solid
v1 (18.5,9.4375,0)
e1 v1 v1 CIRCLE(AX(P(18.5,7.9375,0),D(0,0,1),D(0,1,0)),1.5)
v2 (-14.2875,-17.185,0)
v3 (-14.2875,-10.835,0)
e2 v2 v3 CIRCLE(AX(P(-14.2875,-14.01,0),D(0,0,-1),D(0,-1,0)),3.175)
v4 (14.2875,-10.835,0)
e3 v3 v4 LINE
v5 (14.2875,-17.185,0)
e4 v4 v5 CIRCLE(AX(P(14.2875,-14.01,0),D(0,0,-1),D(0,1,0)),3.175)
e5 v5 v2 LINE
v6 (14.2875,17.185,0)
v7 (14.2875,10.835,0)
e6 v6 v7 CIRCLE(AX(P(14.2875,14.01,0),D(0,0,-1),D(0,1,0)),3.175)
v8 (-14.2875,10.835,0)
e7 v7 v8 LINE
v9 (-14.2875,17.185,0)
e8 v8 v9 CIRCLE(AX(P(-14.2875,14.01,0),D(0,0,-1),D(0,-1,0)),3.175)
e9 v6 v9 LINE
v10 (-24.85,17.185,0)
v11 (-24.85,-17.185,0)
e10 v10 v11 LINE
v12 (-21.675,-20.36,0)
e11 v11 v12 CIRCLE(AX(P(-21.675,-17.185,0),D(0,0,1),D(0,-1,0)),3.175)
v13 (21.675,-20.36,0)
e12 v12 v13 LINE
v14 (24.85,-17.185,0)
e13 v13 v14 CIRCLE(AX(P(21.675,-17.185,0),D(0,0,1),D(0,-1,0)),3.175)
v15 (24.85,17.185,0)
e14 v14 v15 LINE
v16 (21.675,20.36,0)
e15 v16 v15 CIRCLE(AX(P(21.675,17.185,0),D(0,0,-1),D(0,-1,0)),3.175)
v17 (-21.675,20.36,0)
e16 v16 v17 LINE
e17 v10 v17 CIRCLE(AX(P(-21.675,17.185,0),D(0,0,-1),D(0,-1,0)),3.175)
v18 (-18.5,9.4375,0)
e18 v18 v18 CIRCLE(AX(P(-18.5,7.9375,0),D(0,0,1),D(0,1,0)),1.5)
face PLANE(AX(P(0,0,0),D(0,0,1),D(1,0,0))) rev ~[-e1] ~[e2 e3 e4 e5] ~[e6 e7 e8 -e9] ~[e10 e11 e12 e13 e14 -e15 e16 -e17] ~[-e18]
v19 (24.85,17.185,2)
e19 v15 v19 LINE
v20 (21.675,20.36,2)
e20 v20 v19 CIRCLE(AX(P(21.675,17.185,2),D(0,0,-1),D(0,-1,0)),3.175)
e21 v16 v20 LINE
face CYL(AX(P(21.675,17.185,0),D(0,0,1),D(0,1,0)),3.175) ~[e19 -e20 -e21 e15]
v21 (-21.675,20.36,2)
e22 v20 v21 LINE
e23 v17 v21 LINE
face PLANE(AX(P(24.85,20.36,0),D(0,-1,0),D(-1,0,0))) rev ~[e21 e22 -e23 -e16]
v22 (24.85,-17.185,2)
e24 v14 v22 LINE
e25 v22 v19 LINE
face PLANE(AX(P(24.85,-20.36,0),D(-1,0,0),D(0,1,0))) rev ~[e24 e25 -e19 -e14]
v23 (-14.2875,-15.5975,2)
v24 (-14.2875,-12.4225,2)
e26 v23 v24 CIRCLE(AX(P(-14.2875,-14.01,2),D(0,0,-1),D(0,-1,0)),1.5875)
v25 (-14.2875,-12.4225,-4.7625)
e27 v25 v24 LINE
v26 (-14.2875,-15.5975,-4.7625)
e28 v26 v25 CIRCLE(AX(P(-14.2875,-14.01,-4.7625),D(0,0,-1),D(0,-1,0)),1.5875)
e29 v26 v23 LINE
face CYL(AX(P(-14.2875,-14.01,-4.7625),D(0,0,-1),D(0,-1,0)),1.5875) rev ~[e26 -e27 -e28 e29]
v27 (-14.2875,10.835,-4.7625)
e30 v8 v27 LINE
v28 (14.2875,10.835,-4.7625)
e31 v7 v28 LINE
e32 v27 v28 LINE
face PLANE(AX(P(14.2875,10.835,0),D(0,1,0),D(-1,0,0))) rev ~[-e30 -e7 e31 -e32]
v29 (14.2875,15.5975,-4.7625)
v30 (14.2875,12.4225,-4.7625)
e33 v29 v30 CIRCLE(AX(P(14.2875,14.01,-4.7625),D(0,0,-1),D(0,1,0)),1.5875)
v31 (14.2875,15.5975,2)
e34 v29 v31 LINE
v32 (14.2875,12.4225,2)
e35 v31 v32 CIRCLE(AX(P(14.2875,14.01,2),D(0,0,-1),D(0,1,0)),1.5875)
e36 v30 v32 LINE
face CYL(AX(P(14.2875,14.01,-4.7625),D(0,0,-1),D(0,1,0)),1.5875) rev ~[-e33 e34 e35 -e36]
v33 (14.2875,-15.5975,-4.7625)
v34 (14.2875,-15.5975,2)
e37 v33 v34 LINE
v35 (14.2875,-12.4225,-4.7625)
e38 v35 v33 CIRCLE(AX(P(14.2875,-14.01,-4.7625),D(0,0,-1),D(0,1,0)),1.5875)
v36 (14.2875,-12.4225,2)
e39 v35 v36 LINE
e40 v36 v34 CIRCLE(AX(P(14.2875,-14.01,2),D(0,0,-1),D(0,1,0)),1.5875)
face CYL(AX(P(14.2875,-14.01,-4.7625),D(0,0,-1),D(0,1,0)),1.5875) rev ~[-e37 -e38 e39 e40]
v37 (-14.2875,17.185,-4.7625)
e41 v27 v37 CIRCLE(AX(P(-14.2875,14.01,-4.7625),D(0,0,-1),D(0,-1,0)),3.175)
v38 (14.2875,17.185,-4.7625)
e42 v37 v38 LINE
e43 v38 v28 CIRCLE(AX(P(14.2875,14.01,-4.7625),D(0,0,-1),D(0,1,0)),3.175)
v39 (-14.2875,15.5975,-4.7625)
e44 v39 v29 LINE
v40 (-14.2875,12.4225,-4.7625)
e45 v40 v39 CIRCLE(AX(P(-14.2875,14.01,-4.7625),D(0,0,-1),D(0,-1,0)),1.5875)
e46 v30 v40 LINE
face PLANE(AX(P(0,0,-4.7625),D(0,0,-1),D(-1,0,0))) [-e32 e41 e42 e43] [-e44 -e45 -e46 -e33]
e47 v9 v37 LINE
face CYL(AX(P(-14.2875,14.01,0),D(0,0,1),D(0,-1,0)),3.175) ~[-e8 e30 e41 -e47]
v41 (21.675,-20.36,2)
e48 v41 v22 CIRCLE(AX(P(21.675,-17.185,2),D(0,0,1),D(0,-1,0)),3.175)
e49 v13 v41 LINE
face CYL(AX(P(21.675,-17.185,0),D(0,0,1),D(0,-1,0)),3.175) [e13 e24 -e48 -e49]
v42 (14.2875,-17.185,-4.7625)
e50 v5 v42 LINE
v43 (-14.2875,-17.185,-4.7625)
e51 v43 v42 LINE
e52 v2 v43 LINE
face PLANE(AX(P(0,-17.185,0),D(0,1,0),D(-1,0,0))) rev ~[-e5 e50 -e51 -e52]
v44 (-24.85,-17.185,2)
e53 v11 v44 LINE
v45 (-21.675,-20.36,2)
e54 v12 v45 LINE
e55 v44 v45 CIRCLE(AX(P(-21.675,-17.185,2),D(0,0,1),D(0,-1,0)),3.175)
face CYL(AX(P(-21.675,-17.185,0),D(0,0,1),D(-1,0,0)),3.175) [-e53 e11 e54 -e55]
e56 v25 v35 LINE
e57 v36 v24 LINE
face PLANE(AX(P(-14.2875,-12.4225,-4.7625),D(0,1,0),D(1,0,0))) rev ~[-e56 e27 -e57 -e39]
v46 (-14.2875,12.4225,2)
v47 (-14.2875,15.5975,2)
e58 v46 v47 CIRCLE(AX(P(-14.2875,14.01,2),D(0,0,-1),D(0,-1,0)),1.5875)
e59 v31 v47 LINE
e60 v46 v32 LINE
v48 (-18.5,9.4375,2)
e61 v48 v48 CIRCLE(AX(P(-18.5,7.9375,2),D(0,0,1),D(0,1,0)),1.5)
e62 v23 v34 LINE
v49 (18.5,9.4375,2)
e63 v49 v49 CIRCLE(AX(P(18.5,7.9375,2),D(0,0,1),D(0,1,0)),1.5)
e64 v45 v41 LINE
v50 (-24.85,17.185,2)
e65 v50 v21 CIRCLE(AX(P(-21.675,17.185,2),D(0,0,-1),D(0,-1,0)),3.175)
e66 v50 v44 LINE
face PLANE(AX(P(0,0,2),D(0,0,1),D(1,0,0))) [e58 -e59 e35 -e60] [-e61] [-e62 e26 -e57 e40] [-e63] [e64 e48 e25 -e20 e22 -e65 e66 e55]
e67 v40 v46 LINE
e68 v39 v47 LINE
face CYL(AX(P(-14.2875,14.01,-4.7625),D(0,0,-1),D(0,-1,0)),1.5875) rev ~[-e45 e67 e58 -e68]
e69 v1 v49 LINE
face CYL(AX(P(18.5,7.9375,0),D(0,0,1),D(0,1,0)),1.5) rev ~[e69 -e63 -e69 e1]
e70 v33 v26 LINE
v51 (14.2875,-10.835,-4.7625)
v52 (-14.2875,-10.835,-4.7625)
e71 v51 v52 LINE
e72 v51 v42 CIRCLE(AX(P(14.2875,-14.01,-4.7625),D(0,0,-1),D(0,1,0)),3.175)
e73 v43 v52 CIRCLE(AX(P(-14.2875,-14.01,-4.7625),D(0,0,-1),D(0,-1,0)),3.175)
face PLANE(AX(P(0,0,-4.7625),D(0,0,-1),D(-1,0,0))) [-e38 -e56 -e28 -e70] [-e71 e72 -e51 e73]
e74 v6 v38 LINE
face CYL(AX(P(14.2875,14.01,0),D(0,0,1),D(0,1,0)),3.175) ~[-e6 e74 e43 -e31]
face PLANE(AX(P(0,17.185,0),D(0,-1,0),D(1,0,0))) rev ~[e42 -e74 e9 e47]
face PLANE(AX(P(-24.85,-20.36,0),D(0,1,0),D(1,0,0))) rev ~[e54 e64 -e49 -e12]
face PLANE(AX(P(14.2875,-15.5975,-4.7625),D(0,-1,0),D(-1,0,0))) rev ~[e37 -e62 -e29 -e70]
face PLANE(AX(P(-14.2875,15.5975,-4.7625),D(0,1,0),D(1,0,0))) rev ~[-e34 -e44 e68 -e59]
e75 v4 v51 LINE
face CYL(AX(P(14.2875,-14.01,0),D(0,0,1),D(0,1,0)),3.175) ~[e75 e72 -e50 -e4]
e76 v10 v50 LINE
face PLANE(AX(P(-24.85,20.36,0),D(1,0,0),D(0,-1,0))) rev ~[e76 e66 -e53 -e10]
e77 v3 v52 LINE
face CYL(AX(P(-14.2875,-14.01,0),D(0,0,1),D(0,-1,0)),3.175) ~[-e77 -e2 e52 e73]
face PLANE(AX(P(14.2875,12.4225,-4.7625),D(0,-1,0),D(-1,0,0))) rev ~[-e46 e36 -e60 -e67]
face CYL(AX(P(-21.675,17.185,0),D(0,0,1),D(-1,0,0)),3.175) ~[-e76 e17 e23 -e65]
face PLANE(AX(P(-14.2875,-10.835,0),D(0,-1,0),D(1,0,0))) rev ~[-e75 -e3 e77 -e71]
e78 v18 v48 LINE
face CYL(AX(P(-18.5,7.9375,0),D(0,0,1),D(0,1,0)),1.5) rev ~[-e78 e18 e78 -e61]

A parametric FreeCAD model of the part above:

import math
import FreeCAD as App
import Part
import Sketcher

V = App.Vector
Q = App.Units.Quantity


def edges_at(feature, points):
    """Names of the edges that pass closest to the given points."""
    edges = feature.Shape.Edges
    near = lambda p: min(range(len(edges)), key=lambda i: edges[i].distToShape(Part.Vertex(*p))[0])
    return sorted({f"Edge{near(p) + 1}" for p in points})


def add_polygon(sketch, points):
    """Adds a closed chain of lines whose ends are joined by coincident constraints."""
    first, n = sketch.GeometryCount, len(points)
    for a, b in zip(points, points[1:] + points[:1]):
        sketch.addGeometry(Part.LineSegment(App.Vector(*a, 0), App.Vector(*b, 0)), False)
    for i in range(n):
        sketch.addConstraint(Sketcher.Constraint("Coincident", first + i, 2, first + (i + 1) % n, 1))

doc = App.newDocument("Part")
body = doc.addObject("PartDesign::Body", "Body")

# Sketch on XY plane
sketch1 = body.newObject("Sketcher::SketchObject", "Sketch")
sketch1.AttachmentSupport = (doc.getObject("XY_Plane"), [""])
sketch1.MapMode = "FlatFace"
add_polygon(sketch1, [(-24.85, 20.36), (-24.85, -20.36), (24.85, -20.36), (24.85, 20.36)])  # lines 0-3
sketch1.addConstraint([
    Sketcher.Constraint("Vertical", 0),
    Sketcher.Constraint("Horizontal", 1),
    Sketcher.Constraint("Vertical", 2),
    Sketcher.Constraint("Horizontal", 3),
    Sketcher.Constraint("Symmetric", 0, 2, 2, 2, -1, 1),
    Sketcher.Constraint("DistanceX", 1, 1, 1, 2, Q("1.9567 in")),
    Sketcher.Constraint("DistanceY", 0, 2, 0, 1, 40.72),
])
pad1 = body.newObject("PartDesign::Pad", "Pad")
pad1.Profile = sketch1
pad1.Length = 2

# Sketch on XY plane
sketch2 = body.newObject("Sketcher::SketchObject", "Sketch001")
sketch2.AttachmentSupport = (doc.getObject("XY_Plane"), [""])
sketch2.MapMode = "FlatFace"
sketch2.addGeometry([
    Part.Circle(V(18.5, 7.9375, 0), V(0, 0, 1), 1.5),
    Part.Circle(V(-18.5, 7.9375, 0), V(0, 0, 1), 1.5),
], False)
sketch2.addConstraint([
    Sketcher.Constraint("Equal", 0, 1),
    Sketcher.Constraint("Symmetric", 0, 3, 1, 3, -2),
    Sketcher.Constraint("Diameter", 0, Q("0.1181 in")),
    Sketcher.Constraint("DistanceY", -1, 1, 0, 3, Q("0.3125 in")),
    Sketcher.Constraint("DistanceX", 1, 3, 0, 3, Q("1.4567 in")),
])
doc.recompute()
hole = body.newObject("PartDesign::Hole", "Hole")
hole.Profile = sketch2
hole.ThreadType = "None"
hole.Diameter = Q("0.1181102 in")
hole.DepthType = "Dimension"
hole.Depth = 2
hole.DrillPoint = "Flat"
hole.Reversed = True
doc.recompute()

fillet = body.newObject("PartDesign::Fillet", "Fillet")
fillet.Base = (hole, edges_at(hole, [
    (24.85, -20.36, 1),
    (24.85, 20.36, 1),
    (-24.85, 20.36, 1),
    (-24.85, -20.36, 1),
]))
fillet.Radius = Q("0.125 in")

# Sketch on XY plane
sketch3 = body.newObject("Sketcher::SketchObject", "Sketch002")
sketch3.AttachmentSupport = (doc.getObject("XY_Plane"), [""])
sketch3.MapMode = "FlatFace"
sketch3.addGeometry([
    Part.ArcOfCircle(Part.Circle(V(-14.2875, -14.01, 0), V(0, 0, 1), 3.175), math.radians(90), math.radians(270)),  # 0
    Part.LineSegment(V(-14.2875, -10.835, 0), V(14.2875, -10.835, 0)),  # 1
    Part.ArcOfCircle(Part.Circle(V(14.2875, -14.01, 0), V(0, 0, 1), 3.175), math.radians(-90), math.radians(90)),  # 2
    Part.LineSegment(V(14.2875, -17.185, 0), V(-14.2875, -17.185, 0)),  # 3
    Part.LineSegment(V(14.2875, 10.835, 0), V(-14.2875, 10.835, 0)),  # 4
    Part.ArcOfCircle(Part.Circle(V(-14.2875, 14.01, 0), V(0, 0, 1), 3.175), math.radians(90), math.radians(270)),  # 5
    Part.LineSegment(V(-14.2875, 17.185, 0), V(14.2875, 17.185, 0)),  # 6
    Part.ArcOfCircle(Part.Circle(V(14.2875, 14.01, 0), V(0, 0, 1), 3.175), math.radians(-90), math.radians(90)),  # 7
], False)
sketch3.addConstraint([
    Sketcher.Constraint("Tangent", 0, 1, 1, 1),
    Sketcher.Constraint("Tangent", 1, 2, 2, 2),
    Sketcher.Constraint("Tangent", 2, 1, 3, 1),
    Sketcher.Constraint("Tangent", 3, 2, 0, 2),
    Sketcher.Constraint("Tangent", 4, 2, 5, 2),
    Sketcher.Constraint("Tangent", 5, 1, 6, 1),
    Sketcher.Constraint("Tangent", 6, 2, 7, 2),
    Sketcher.Constraint("Tangent", 7, 1, 4, 1),
    Sketcher.Constraint("Horizontal", 1),
    Sketcher.Constraint("Horizontal", 3),
    Sketcher.Constraint("Horizontal", 4),
    Sketcher.Constraint("Horizontal", 6),
    Sketcher.Constraint("Equal", 2, 5),
    Sketcher.Constraint("Symmetric", 2, 3, 5, 3, -1, 1),
    Sketcher.Constraint("Vertical", 0, 3, 5, 3),
    Sketcher.Constraint("Vertical", 2, 3, 7, 3),
    Sketcher.Constraint("Radius", 0, Q("0.125 in")),
    Sketcher.Constraint("DistanceX", 1, 1, 1, 2, Q("1.125 in")),
    Sketcher.Constraint("DistanceY", 0, 3, 5, 3, 28.02),
])
pad2 = body.newObject("PartDesign::Pad", "Pad001")
pad2.Profile = sketch3
pad2.Length = Q("0.1875 in")
pad2.Reversed = True

# Sketch on XY plane
sketch4 = body.newObject("Sketcher::SketchObject", "Sketch003")
sketch4.AttachmentSupport = (doc.getObject("XY_Plane"), [""])
sketch4.MapMode = "FlatFace"
sketch4.AttachmentOffset = App.Placement(V(0, 0, -0.1875 * 25.4), App.Rotation())
sketch4.addGeometry([
    Part.ArcOfCircle(Part.Circle(V(-14.2875, -14.01, 0), V(0, 0, 1), 1.5875), math.radians(90), math.radians(270)),  # 0
    Part.LineSegment(V(-14.2875, -12.4225, 0), V(14.2875, -12.4225, 0)),  # 1
    Part.ArcOfCircle(Part.Circle(V(14.2875, -14.01, 0), V(0, 0, 1), 1.5875), math.radians(-90), math.radians(90)),  # 2
    Part.LineSegment(V(14.2875, -15.5975, 0), V(-14.2875, -15.5975, 0)),  # 3
    Part.ArcOfCircle(Part.Circle(V(-14.2875, 14.01, 0), V(0, 0, 1), 1.5875), math.radians(90), math.radians(270)),  # 4
    Part.LineSegment(V(-14.2875, 15.5975, 0), V(14.2875, 15.5975, 0)),  # 5
    Part.ArcOfCircle(Part.Circle(V(14.2875, 14.01, 0), V(0, 0, 1), 1.5875), math.radians(-90), math.radians(90)),  # 6
    Part.LineSegment(V(14.2875, 12.4225, 0), V(-14.2875, 12.4225, 0)),  # 7
], False)
sketch4.addConstraint([
    Sketcher.Constraint("Tangent", 0, 1, 1, 1),
    Sketcher.Constraint("Tangent", 1, 2, 2, 2),
    Sketcher.Constraint("Tangent", 2, 1, 3, 1),
    Sketcher.Constraint("Tangent", 3, 2, 0, 2),
    Sketcher.Constraint("Tangent", 4, 1, 5, 1),
    Sketcher.Constraint("Tangent", 5, 2, 6, 2),
    Sketcher.Constraint("Tangent", 6, 1, 7, 1),
    Sketcher.Constraint("Tangent", 7, 2, 4, 2),
    Sketcher.Constraint("Horizontal", 1),
    Sketcher.Constraint("Horizontal", 3),
    Sketcher.Constraint("Horizontal", 5),
    Sketcher.Constraint("Horizontal", 7),
    Sketcher.Constraint("Equal", 2, 4),
    Sketcher.Constraint("Symmetric", 2, 3, 4, 3, -1, 1),
    Sketcher.Constraint("Vertical", 0, 3, 4, 3),
    Sketcher.Constraint("Vertical", 2, 3, 6, 3),
    Sketcher.Constraint("Radius", 0, Q("0.0625 in")),
    Sketcher.Constraint("DistanceX", 1, 1, 1, 2, Q("1.125 in")),
    Sketcher.Constraint("DistanceY", 0, 3, -1, 1, 14.01),
])
pocket1 = body.newObject("PartDesign::Pocket", "Pocket")
pocket1.Profile = sketch4
pocket1.Type = "ThroughAll"
pocket1.Midplane = True

doc.recompute()
